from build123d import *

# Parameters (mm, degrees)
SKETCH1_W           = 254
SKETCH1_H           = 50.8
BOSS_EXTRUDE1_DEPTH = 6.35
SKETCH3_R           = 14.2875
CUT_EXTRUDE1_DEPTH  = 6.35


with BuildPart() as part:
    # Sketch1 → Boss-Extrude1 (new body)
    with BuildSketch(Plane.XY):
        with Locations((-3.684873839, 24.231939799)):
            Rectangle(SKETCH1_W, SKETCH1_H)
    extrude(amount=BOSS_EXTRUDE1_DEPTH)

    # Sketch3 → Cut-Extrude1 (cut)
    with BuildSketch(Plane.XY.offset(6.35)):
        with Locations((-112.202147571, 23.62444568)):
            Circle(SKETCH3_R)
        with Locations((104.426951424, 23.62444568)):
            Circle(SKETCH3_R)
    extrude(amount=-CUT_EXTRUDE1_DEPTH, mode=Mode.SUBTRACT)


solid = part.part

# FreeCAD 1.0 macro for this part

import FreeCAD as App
import Part
import Sketcher

V = App.Vector
Q = App.Units.Quantity


def add_polygon(sketch, points):
    """Adds a closed chain of lines whose ends are joined by coincident constraints."""
    first, n = sketch.GeometryCount, len(points)
    for a, b in zip(points, points[1:] + points[:1]):
        sketch.addGeometry(Part.LineSegment(App.Vector(*a, 0), App.Vector(*b, 0)), False)
    for i in range(n):
        sketch.addConstraint(Sketcher.Constraint("Coincident", first + i, 2, first + (i + 1) % n, 1))

doc = App.newDocument("Part")
body = doc.addObject("PartDesign::Body", "Body")

# Sketch on XY plane
sketch1 = body.newObject("Sketcher::SketchObject", "Sketch")
sketch1.AttachmentSupport = (doc.getObject("XY_Plane"), [""])
sketch1.MapMode = "FlatFace"
add_polygon(sketch1, [(-131, 50), (-131, -1), (123, -1), (123, 50)])  # lines 0-3
sketch1.addConstraint(Sketcher.Constraint("Vertical", 0))
sketch1.addConstraint(Sketcher.Constraint("Horizontal", 1))
sketch1.addConstraint(Sketcher.Constraint("Vertical", 2))
sketch1.addConstraint(Sketcher.Constraint("Horizontal", 3))
sketch1.addConstraint(Sketcher.Constraint("DistanceX", 1, 1, 1, 2, Q("10 in")))
sketch1.addConstraint(Sketcher.Constraint("DistanceY", 0, 2, 0, 1, Q("2 in")))
sketch1.addConstraint(Sketcher.Constraint("DistanceY", 0, 2, -1, 1, 1.16806))
sketch1.addConstraint(Sketcher.Constraint("DistanceX", 0, 2, -1, 1, 130.684874))
pad1 = body.newObject("PartDesign::Pad", "Pad")
pad1.Profile = sketch1
pad1.Length = Q("0.25 in")

# Sketch on XY plane
sketch2 = body.newObject("Sketcher::SketchObject", "Sketch001")
sketch2.AttachmentSupport = (doc.getObject("XY_Plane"), [""])
sketch2.MapMode = "FlatFace"
sketch2.AttachmentOffset = App.Placement(V(0, 0, 0.25 * 25.4), App.Rotation())
sketch2.addGeometry(Part.Circle(V(-112, 24, 0), V(0, 0, 1), 14), False)
sketch2.addGeometry(Part.Circle(V(104, 24, 0), V(0, 0, 1), 14), False)
sketch2.addConstraint(Sketcher.Constraint("Equal", 0, 1))
sketch2.addConstraint(Sketcher.Constraint("Horizontal", 0, 3, 1, 3))
sketch2.addConstraint(Sketcher.Constraint("Diameter", 0, Q("1.125 in")))
sketch2.addConstraint(Sketcher.Constraint("DistanceX", 0, 3, 1, 3, 216.629099))
sketch2.addConstraint(Sketcher.Constraint("DistanceX", -1, 1, 1, 3, 104.426951))
sketch2.addConstraint(Sketcher.Constraint("DistanceY", -1, 1, 0, 3, 23.624446))
pocket1 = body.newObject("PartDesign::Pocket", "Pocket")
pocket1.Profile = sketch2
pocket1.Length = Q("0.25 in")

doc.recompute()
